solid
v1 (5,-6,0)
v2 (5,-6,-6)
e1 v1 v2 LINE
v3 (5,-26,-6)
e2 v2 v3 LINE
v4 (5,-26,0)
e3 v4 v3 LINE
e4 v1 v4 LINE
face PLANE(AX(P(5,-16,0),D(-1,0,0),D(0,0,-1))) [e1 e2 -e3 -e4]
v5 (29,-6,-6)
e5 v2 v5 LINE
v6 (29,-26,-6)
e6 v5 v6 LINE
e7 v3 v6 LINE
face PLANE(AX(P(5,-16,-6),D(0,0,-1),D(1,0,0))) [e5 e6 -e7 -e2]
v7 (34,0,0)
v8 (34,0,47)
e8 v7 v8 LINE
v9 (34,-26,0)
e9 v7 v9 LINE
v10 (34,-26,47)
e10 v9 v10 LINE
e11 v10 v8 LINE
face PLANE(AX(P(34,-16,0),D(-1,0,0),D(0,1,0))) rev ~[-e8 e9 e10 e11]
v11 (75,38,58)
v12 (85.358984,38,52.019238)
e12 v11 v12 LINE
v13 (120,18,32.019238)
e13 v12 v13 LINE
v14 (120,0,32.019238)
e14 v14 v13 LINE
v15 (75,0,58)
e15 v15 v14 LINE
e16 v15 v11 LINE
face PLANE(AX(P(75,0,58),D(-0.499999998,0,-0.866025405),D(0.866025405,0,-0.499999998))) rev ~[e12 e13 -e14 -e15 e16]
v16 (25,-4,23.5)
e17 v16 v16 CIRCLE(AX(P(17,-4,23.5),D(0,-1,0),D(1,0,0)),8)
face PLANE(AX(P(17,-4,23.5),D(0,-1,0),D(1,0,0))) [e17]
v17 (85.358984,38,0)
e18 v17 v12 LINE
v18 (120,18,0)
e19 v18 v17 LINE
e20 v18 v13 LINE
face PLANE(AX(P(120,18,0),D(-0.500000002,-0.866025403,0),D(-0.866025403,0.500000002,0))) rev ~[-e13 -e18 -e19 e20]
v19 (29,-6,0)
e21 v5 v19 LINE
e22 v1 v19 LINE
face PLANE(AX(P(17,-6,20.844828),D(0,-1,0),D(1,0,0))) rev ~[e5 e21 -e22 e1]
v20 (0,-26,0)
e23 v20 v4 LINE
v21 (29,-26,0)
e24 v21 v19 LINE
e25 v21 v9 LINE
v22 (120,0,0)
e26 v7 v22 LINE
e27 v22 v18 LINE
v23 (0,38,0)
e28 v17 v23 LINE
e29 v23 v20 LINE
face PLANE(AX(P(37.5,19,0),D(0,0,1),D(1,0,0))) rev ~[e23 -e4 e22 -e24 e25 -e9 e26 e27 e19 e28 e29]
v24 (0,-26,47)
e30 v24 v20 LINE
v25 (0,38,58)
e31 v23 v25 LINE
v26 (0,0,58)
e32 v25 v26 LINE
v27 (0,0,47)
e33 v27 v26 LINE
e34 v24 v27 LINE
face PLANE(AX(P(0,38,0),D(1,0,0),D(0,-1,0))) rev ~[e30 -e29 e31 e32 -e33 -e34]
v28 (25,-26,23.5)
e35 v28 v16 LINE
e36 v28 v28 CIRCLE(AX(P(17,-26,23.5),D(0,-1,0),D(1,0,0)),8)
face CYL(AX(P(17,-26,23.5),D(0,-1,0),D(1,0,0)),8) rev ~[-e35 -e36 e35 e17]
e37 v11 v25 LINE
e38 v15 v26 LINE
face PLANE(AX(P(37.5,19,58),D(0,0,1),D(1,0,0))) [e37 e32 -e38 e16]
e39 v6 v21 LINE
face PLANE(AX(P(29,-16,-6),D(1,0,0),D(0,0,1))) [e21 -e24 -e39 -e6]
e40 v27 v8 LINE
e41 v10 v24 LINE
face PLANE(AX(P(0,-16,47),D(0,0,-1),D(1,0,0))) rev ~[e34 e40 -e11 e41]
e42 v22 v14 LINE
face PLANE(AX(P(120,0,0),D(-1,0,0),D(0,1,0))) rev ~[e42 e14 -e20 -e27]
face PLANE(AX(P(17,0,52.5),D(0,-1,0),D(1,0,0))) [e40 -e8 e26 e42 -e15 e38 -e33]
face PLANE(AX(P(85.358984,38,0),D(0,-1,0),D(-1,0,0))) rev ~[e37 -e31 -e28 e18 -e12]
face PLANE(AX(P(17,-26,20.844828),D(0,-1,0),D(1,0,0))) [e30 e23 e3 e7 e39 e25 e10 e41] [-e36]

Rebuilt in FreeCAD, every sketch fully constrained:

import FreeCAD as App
import Part
import Sketcher

V = App.Vector
Q = App.Units.Quantity


def add_polygon(sketch, points):
    """Adds a closed chain of lines whose ends are joined by coincident constraints."""
    first, n = sketch.GeometryCount, len(points)
    for a, b in zip(points, points[1:] + points[:1]):
        sketch.addGeometry(Part.LineSegment(App.Vector(*a, 0), App.Vector(*b, 0)), False)
    for i in range(n):
        sketch.addConstraint(Sketcher.Constraint("Coincident", first + i, 2, first + (i + 1) % n, 1))

doc = App.newDocument("Part")
body = doc.addObject("PartDesign::Body", "Body")

# Sketch on XY plane
sketch1 = body.newObject("Sketcher::SketchObject", "Sketch")
sketch1.AttachmentSupport = (doc.getObject("XY_Plane"), [""])
sketch1.MapMode = "FlatFace"
add_polygon(sketch1, [(0, 38), (0, -16), (34, -16), (34, 0), (120, 0), (120, 18), (85.358984, 38)])  # lines 0-6
sketch1.addConstraint([
    Sketcher.Constraint("Vertical", 0),
    Sketcher.Constraint("Horizontal", 1),
    Sketcher.Constraint("Vertical", 2),
    Sketcher.Constraint("Horizontal", 3),
    Sketcher.Constraint("Vertical", 4),
    Sketcher.Constraint("Horizontal", 6),
    Sketcher.Constraint("PointOnObject", 0, 2, -2),
    Sketcher.Constraint("PointOnObject", 2, 2, -1),
    Sketcher.Constraint("DistanceX", 1, 1, 1, 2, Q("34 mm")),
    Sketcher.Constraint("DistanceX", 3, 1, 3, 2, Q("86 mm")),
    Sketcher.Constraint("DistanceY", 0, 2, 0, 1, Q("54 mm")),
    Sketcher.Constraint("DistanceY", 2, 1, 2, 2, Q("16 mm")),
    Sketcher.Constraint("DistanceY", 4, 1, 4, 2, Q("18 mm")),
    Sketcher.Constraint("Angle", 5, Q("150 deg")),
])
pad1 = body.newObject("PartDesign::Pad", "Pad")
pad1.Profile = sketch1
pad1.Length = 58

# Sketch on XZ plane
sketch2 = body.newObject("Sketcher::SketchObject", "Sketch001")
sketch2.AttachmentSupport = (doc.getObject("XZ_Plane"), [""])
sketch2.MapMode = "FlatFace"
add_polygon(sketch2, [(75, 58), (120, 32.019238), (120, 58)])  # lines 0-2
sketch2.addConstraint([
    Sketcher.Constraint("Vertical", 1),
    Sketcher.Constraint("Horizontal", 2),
    Sketcher.Constraint("DistanceX", 2, 2, 2, 1, Q("45 mm")),
    Sketcher.Constraint("Angle", 0, Q("-30 deg")),
    Sketcher.Constraint("DistanceX", -1, 1, 0, 2, Q("120 mm")),
    Sketcher.Constraint("DistanceY", -1, 1, 1, 2, Q("58 mm")),
])
pocket1 = body.newObject("PartDesign::Pocket", "Pocket")
pocket1.Profile = sketch2
pocket1.Type = "ThroughAll"

# Sketch on XZ plane
sketch3 = body.newObject("Sketcher::SketchObject", "Sketch002")
sketch3.AttachmentSupport = (doc.getObject("XZ_Plane"), [""])
sketch3.MapMode = "FlatFace"
sketch3.AttachmentOffset = App.Placement(V(0, 0, 16), App.Rotation())
add_polygon(sketch3, [(0, 58), (0, 47), (34, 47), (34, 58)])  # lines 0-3
sketch3.addConstraint([
    Sketcher.Constraint("Vertical", 0),
    Sketcher.Constraint("Horizontal", 1),
    Sketcher.Constraint("Vertical", 2),
    Sketcher.Constraint("Horizontal", 3),
    Sketcher.Constraint("PointOnObject", 0, 2, -2),
    Sketcher.Constraint("DistanceX", 1, 1, 1, 2, Q("34 mm")),
    Sketcher.Constraint("DistanceY", 0, 2, 0, 1, Q("11 mm")),
    Sketcher.Constraint("DistanceY", -1, 1, 0, 2, Q("47 mm")),
])
pocket2 = body.newObject("PartDesign::Pocket", "Pocket001")
pocket2.Profile = sketch3
pocket2.Length = 32
pocket2.Midplane = True

# Sketch on XZ plane
sketch4 = body.newObject("Sketcher::SketchObject", "Sketch003")
sketch4.AttachmentSupport = (doc.getObject("XZ_Plane"), [""])
sketch4.MapMode = "FlatFace"
sketch4.AttachmentOffset = App.Placement(V(0, 0, 16), App.Rotation())
add_polygon(sketch4, [(34, 47), (0, 47), (0, 0), (5, 0), (5, -6), (29, -6), (29, 0), (34, 0)])  # lines 0-7
sketch4.addConstraint([
    Sketcher.Constraint("Horizontal", 0),
    Sketcher.Constraint("Vertical", 1),
    Sketcher.Constraint("Horizontal", 2),
    Sketcher.Constraint("Vertical", 3),
    Sketcher.Constraint("Horizontal", 4),
    Sketcher.Constraint("Vertical", 5),
    Sketcher.Constraint("Horizontal", 6),
    Sketcher.Constraint("Vertical", 7),
    Sketcher.Constraint("Coincident", 1, 2, -1, 1),
    Sketcher.Constraint("PointOnObject", 5, 2, -1),
    Sketcher.Constraint("Equal", 2, 6),
    Sketcher.Constraint("DistanceX", 0, 2, 0, 1, Q("34 mm")),
    Sketcher.Constraint("DistanceX", 2, 1, 2, 2, Q("5 mm")),
    Sketcher.Constraint("DistanceY", 1, 2, 1, 1, Q("47 mm")),
    Sketcher.Constraint("DistanceY", 3, 2, 3, 1, Q("6 mm")),
])
pad2 = body.newObject("PartDesign::Pad", "Pad001")
pad2.Profile = sketch4
pad2.Length = 20
pad2.Midplane = True

# Sketch on XZ plane
sketch5 = body.newObject("Sketcher::SketchObject", "Sketch004")
sketch5.AttachmentSupport = (doc.getObject("XZ_Plane"), [""])
sketch5.MapMode = "FlatFace"
sketch5.AttachmentOffset = App.Placement(V(0, 0, 26), App.Rotation())
sketch5.addGeometry(Part.Circle(V(17, 23.5, 0), V(0, 0, 1), 8), False)
sketch5.addConstraint([
    Sketcher.Constraint("Diameter", 0, Q("16 mm")),
    Sketcher.Constraint("DistanceX", -1, 1, 0, 3, Q("17 mm")),
    Sketcher.Constraint("DistanceY", -1, 1, 0, 3, Q("23.5 mm")),
])
pocket3 = body.newObject("PartDesign::Pocket", "Pocket002")
pocket3.Profile = sketch5
pocket3.Length = 22

doc.recompute()
